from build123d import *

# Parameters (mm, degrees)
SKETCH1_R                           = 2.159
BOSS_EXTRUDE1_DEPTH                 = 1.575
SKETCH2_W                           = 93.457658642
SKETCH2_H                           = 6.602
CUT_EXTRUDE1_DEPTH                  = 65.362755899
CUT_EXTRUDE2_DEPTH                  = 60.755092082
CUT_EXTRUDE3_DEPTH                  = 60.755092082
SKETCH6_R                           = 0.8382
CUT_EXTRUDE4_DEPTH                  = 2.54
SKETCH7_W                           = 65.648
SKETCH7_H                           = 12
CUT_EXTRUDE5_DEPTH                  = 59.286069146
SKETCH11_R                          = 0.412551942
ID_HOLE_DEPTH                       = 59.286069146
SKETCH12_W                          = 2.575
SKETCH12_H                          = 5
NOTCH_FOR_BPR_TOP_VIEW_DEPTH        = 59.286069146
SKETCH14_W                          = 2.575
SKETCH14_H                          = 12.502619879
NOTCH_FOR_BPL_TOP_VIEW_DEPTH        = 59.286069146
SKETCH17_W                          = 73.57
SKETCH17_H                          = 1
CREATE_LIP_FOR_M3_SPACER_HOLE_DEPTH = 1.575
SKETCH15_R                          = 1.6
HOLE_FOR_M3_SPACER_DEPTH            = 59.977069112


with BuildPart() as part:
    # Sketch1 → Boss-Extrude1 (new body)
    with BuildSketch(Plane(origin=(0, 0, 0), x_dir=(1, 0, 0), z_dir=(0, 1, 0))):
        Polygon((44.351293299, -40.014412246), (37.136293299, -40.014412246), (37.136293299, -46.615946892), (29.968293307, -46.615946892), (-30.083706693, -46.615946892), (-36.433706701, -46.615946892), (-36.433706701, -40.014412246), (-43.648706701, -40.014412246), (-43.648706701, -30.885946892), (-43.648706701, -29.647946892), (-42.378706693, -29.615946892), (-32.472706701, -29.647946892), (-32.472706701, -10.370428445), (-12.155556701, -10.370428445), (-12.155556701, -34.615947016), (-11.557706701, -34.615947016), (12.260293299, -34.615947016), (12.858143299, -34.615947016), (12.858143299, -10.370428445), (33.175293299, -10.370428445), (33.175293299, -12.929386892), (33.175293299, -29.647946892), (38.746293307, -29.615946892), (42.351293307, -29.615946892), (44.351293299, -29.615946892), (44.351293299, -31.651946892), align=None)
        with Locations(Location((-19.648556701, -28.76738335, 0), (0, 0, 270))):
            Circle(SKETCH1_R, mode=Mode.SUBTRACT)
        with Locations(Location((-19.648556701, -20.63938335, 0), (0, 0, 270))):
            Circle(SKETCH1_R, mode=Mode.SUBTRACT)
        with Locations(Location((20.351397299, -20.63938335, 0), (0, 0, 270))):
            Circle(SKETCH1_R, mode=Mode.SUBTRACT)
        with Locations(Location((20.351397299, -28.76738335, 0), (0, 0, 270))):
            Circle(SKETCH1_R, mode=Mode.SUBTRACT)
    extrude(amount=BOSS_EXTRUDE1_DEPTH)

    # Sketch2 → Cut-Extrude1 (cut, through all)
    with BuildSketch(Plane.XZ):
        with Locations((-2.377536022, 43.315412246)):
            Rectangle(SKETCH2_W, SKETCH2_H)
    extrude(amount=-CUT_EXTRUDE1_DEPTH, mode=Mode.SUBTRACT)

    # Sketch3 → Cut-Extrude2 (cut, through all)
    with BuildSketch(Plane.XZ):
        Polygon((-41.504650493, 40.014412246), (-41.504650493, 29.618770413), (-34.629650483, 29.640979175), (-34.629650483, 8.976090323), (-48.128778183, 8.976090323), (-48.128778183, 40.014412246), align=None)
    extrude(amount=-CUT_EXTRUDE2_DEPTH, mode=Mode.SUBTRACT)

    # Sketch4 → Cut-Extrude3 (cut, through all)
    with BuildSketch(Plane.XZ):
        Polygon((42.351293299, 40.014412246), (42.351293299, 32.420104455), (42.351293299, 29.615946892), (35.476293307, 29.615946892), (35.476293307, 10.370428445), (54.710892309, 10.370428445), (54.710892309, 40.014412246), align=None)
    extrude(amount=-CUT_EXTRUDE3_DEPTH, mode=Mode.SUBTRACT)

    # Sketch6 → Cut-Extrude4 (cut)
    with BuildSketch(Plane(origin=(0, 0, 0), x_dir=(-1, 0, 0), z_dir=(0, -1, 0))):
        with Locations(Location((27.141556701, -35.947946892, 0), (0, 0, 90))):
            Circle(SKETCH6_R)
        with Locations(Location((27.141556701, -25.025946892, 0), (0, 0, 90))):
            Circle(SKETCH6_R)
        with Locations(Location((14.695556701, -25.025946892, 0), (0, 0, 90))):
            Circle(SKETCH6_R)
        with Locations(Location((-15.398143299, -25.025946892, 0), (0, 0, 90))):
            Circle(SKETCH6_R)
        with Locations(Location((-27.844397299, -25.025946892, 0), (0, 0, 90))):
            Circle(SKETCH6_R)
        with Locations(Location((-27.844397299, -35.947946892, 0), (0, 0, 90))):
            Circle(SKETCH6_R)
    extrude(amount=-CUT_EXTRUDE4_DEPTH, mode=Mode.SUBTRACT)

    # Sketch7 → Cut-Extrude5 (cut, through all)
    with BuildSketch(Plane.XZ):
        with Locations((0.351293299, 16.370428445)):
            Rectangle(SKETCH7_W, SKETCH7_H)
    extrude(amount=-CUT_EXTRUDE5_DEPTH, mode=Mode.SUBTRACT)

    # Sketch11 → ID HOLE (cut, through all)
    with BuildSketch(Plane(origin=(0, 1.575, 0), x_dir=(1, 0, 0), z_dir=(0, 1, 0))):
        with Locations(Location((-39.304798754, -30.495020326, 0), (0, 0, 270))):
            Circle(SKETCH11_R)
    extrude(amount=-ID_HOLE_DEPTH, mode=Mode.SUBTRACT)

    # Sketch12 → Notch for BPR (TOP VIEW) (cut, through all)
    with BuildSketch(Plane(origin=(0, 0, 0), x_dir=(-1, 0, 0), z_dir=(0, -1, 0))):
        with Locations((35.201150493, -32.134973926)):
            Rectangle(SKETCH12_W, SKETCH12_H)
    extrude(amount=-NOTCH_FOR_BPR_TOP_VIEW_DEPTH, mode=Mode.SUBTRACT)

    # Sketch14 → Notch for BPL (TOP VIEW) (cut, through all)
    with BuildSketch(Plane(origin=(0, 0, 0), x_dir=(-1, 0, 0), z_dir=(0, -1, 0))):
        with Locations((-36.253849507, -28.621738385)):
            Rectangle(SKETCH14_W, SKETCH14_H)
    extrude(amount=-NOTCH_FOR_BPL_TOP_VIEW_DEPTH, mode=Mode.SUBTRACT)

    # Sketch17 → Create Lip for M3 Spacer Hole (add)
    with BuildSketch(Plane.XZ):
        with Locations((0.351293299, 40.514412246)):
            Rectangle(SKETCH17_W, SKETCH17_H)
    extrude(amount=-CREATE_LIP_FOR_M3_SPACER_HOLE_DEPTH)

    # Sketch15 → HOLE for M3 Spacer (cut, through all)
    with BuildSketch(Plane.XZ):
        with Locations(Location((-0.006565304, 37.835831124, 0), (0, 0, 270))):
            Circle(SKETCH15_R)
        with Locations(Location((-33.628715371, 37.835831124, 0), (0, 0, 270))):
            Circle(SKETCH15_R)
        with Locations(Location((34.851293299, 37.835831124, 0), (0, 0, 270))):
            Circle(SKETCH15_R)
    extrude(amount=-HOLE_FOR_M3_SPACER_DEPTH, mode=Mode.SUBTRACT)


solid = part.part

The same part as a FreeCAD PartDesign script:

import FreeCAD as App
import Part
import Sketcher
from FreeCAD import Vector


def add_polygon(sketch, points):
    """Adds a closed chain of lines whose ends are joined by coincident constraints."""
    first, n = sketch.GeometryCount, len(points)
    for a, b in zip(points, points[1:] + points[:1]):
        sketch.addGeometry(Part.LineSegment(App.Vector(*a, 0), App.Vector(*b, 0)), False)
    for i in range(n):
        sketch.addConstraint(Sketcher.Constraint("Coincident", first + i, 2, first + (i + 1) % n, 1))

doc = App.newDocument("Part")
params = doc.addObject("Spreadsheet::Sheet", "Params")
for row, (alias, value) in enumerate([
    ("sketch1_width", "73.57 mm"),
    ("pad1_length", "1.575 mm"),
    ("pocket4_length", "2.54 mm"),
    ("sketch6_height", "12 mm"),
    ("sketch8_height", "5 mm"),
    ("sketch10_height", "1 mm"),
    ("sketch10_width", "73.57 mm"),
    ("pad2_length", "1.575 mm"),
    ("sketch11_diameter", "3.2 mm"),
], start=1):
    params.set(f"A{row}", alias)
    params.set(f"B{row}", "=" + value)
    params.setAlias(f"B{row}", alias)

body = doc.addObject("PartDesign::Body", "Body")

sketch1 = body.newObject("Sketcher::SketchObject", "Sketch")
sketch1.AttachmentSupport = (doc.getObject("XZ_Plane"), [""])
sketch1.MapMode = "FlatFace"
add_polygon(sketch1, [(37.1, 40), (44.4, 40), (44.4, 29.6), (38.7, 29.6), (33.2, 29.6), (33.2, 10.4), (12.9, 10.4), (12.9, 34.6), (-12.2, 34.6), (-12.2, 10.4), (-32.5, 10.4), (-32.5, 29.6), (-42.4, 29.6), (-43.6, 29.6), (-43.6, 40), (-36.4, 40), (-36.4, 46.6), (37.1, 46.6)])
sketch1.addGeometry(Part.Circle(Vector(20.4, 28.8, 0), Vector(0, 0, 1), 2.2), False)
sketch1.addGeometry(Part.Circle(Vector(-19.6, 28.8, 0), Vector(0, 0, 1), 2.2), False)
sketch1.addGeometry(Part.Circle(Vector(20.4, 20.6, 0), Vector(0, 0, 1), 2.2), False)
sketch1.addGeometry(Part.Circle(Vector(-19.6, 20.6, 0), Vector(0, 0, 1), 2.2), False)
sketch1.addConstraint(Sketcher.Constraint("Horizontal", 0))
sketch1.addConstraint(Sketcher.Constraint("Vertical", 1))
sketch1.addConstraint(Sketcher.Constraint("Horizontal", 2))
sketch1.addConstraint(Sketcher.Constraint("Vertical", 4))
sketch1.addConstraint(Sketcher.Constraint("Horizontal", 5))
sketch1.addConstraint(Sketcher.Constraint("Vertical", 6))
sketch1.addConstraint(Sketcher.Constraint("Horizontal", 7))
sketch1.addConstraint(Sketcher.Constraint("Vertical", 8))
sketch1.addConstraint(Sketcher.Constraint("Horizontal", 9))
sketch1.addConstraint(Sketcher.Constraint("Vertical", 10))
sketch1.addConstraint(Sketcher.Constraint("Vertical", 13))
sketch1.addConstraint(Sketcher.Constraint("Horizontal", 14))
sketch1.addConstraint(Sketcher.Constraint("Vertical", 15))
sketch1.addConstraint(Sketcher.Constraint("Horizontal", 16))
sketch1.addConstraint(Sketcher.Constraint("Vertical", 17))
sketch1.addConstraint(Sketcher.Constraint("Equal", 18, 19))
sketch1.addConstraint(Sketcher.Constraint("Equal", 19, 20))
sketch1.addConstraint(Sketcher.Constraint("Equal", 20, 21))
sketch1.addConstraint(Sketcher.Constraint("Horizontal", 18, 3, 19, 3))
sketch1.addConstraint(Sketcher.Constraint("Horizontal", 20, 3, 21, 3))
sketch1.addConstraint(Sketcher.Constraint("Horizontal", 5, 2, 8, 2))
sketch1.addConstraint(Sketcher.Constraint("Horizontal", 3, 2, 10, 2))
sketch1.addConstraint(Sketcher.Constraint("Horizontal", 2, 2, 11, 2))
sketch1.addConstraint(Sketcher.Constraint("Horizontal", 10, 2, 12, 2))
sketch1.addConstraint(Sketcher.Constraint("Horizontal", 0, 2, 13, 2))
sketch1.addConstraint(Sketcher.Constraint("Vertical", 18, 3, 20, 3))
sketch1.addConstraint(Sketcher.Constraint("Vertical", 19, 3, 21, 3))
sketch1.addConstraint(Sketcher.Constraint("Equal", 5, 9))
sketch1.addConstraint(Sketcher.Constraint("Equal", 0, 14))
sketch1.addConstraint(Sketcher.Constraint("Diameter", 18, 4.318))
sketch1.addConstraint(Sketcher.Constraint("DistanceY", 2, 2, 6, 2, 5.0))
sketch1.addConstraint(Sketcher.Constraint("DistanceY", 11, 2, 15, 2, 17.0))
sketch1.addConstraint(Sketcher.Constraint("DistanceX", 16, 1, 16, 2, 73.57))
sketch1.addConstraint(Sketcher.Constraint("DistanceX", 0, 1, 0, 2, 7.215))
sketch1.addConstraint(Sketcher.Constraint("DistanceX", 2, 2, 2, 1, 5.605))
sketch1.addConstraint(Sketcher.Constraint("DistanceX", 12, 2, 11, 2, 1.27))
sketch1.addConstraint(Sketcher.Constraint("DistanceX", 7, 2, 7, 1, 25.0137))
sketch1.addConstraint(Sketcher.Constraint("DistanceY", 20, 3, 18, 3, 8.128))
sketch1.addConstraint(Sketcher.Constraint("DistanceX", 3, 2, 2, 2, 5.571))
sketch1.addConstraint(Sketcher.Constraint("DistanceY", 2, 2, 3, 2, 0.032))
sketch1.addConstraint(Sketcher.Constraint("DistanceX", 19, 3, 7, 2, 7.493))
sketch1.addConstraint(Sketcher.Constraint("DistanceX", 11, 2, 10, 2, 9.906))
sketch1.addConstraint(Sketcher.Constraint("DistanceY", 4, 2, 4, 1, 19.277518))
sketch1.addConstraint(Sketcher.Constraint("DistanceY", 1, 2, 1, 1, 10.398465))
sketch1.addConstraint(Sketcher.Constraint("DistanceY", -1, 1, 4, 2, 10.370428))
sketch1.addConstraint(Sketcher.Constraint("DistanceY", 18, 3, 0, 2, 11.247029))
sketch1.addConstraint(Sketcher.Constraint("DistanceX", -1, 1, 18, 3, 20.351397))
sketch1.addConstraint(Sketcher.Constraint("DistanceX", 19, 3, -1, 1, 19.648557))
sketch1.setExpression("Constraints[50]", "Params.sketch1_width")
pad1 = body.newObject("PartDesign::Pad", "Pad")
pad1.Profile = sketch1
pad1.setExpression("Length", "Params.pad1_length")
pad1.Reversed = True

sketch2 = body.newObject("Sketcher::SketchObject", "Sketch001")
sketch2.AttachmentSupport = (doc.getObject("XZ_Plane"), [""])
sketch2.MapMode = "FlatFace"
add_polygon(sketch2, [(-49, 47), (-49, 40), (44, 40), (44, 47)])
sketch2.addConstraint(Sketcher.Constraint("Vertical", 0))
sketch2.addConstraint(Sketcher.Constraint("Horizontal", 1))
sketch2.addConstraint(Sketcher.Constraint("Vertical", 2))
sketch2.addConstraint(Sketcher.Constraint("Horizontal", 3))
sketch2.addConstraint(Sketcher.Constraint("DistanceY", 0, 2, 0, 1, 6.602))
sketch2.addConstraint(Sketcher.Constraint("DistanceX", 1, 1, 1, 2, 93.457659))
sketch2.addConstraint(Sketcher.Constraint("DistanceX", 0, 2, -1, 1, 49.106365))
sketch2.addConstraint(Sketcher.Constraint("DistanceY", -1, 1, 0, 2, 40.014412))
pocket1 = body.newObject("PartDesign::Pocket", "Pocket")
pocket1.Profile = sketch2
pocket1.Type = "ThroughAll"

sketch3 = body.newObject("Sketcher::SketchObject", "Sketch002")
sketch3.AttachmentSupport = (doc.getObject("XZ_Plane"), [""])
sketch3.MapMode = "FlatFace"
add_polygon(sketch3, [(-42, 30), (-42, 40), (-48, 40), (-48, 9), (-35, 9), (-35, 30)])
sketch3.addConstraint(Sketcher.Constraint("Vertical", 0))
sketch3.addConstraint(Sketcher.Constraint("Horizontal", 1))
sketch3.addConstraint(Sketcher.Constraint("Vertical", 2))
sketch3.addConstraint(Sketcher.Constraint("Horizontal", 3))
sketch3.addConstraint(Sketcher.Constraint("Vertical", 4))
sketch3.addConstraint(Sketcher.Constraint("DistanceX", 0, 2, 3, 2, 6.875))
sketch3.addConstraint(Sketcher.Constraint("DistanceY", 0, 1, 0, 2, 10.395642))
sketch3.addConstraint(Sketcher.Constraint("DistanceY", 2, 2, 2, 1, 31.038322))
sketch3.addConstraint(Sketcher.Constraint("DistanceY", 4, 1, 4, 2, 20.664889))
sketch3.addConstraint(Sketcher.Constraint("DistanceX", 1, 2, 1, 1, 6.624128))
sketch3.addConstraint(Sketcher.Constraint("DistanceX", 0, 2, -1, 1, 41.50465))
sketch3.addConstraint(Sketcher.Constraint("DistanceY", -1, 1, 2, 2, 8.97609))
pocket2 = body.newObject("PartDesign::Pocket", "Pocket001")
pocket2.Profile = sketch3
pocket2.Type = "ThroughAll"

sketch4 = body.newObject("Sketcher::SketchObject", "Sketch003")
sketch4.AttachmentSupport = (doc.getObject("XZ_Plane"), [""])
sketch4.MapMode = "FlatFace"
add_polygon(sketch4, [(42, 40), (42, 30), (35, 30), (35, 10), (55, 10), (55, 40)])
sketch4.addConstraint(Sketcher.Constraint("Vertical", 0))
sketch4.addConstraint(Sketcher.Constraint("Horizontal", 1))
sketch4.addConstraint(Sketcher.Constraint("Vertical", 2))
sketch4.addConstraint(Sketcher.Constraint("Horizontal", 3))
sketch4.addConstraint(Sketcher.Constraint("Vertical", 4))
sketch4.addConstraint(Sketcher.Constraint("Horizontal", 5))
sketch4.addConstraint(Sketcher.Constraint("DistanceX", 1, 2, 1, 1, 6.875))
sketch4.addConstraint(Sketcher.Constraint("DistanceX", 3, 1, 3, 2, 19.234599))
sketch4.addConstraint(Sketcher.Constraint("DistanceY", 2, 2, 2, 1, 19.245518))
sketch4.addConstraint(Sketcher.Constraint("DistanceY", 0, 2, 0, 1, 10.398465))
sketch4.addConstraint(Sketcher.Constraint("DistanceY", -1, 1, 2, 2, 10.370428))
sketch4.addConstraint(Sketcher.Constraint("DistanceX", -1, 1, 0, 2, 42.351293))
pocket3 = body.newObject("PartDesign::Pocket", "Pocket002")
pocket3.Profile = sketch4
pocket3.Type = "ThroughAll"

sketch5 = body.newObject("Sketcher::SketchObject", "Sketch004")
sketch5.AttachmentSupport = (doc.getObject("XZ_Plane"), [""])
sketch5.MapMode = "FlatFace"
sketch5.addGeometry(Part.Circle(Vector(-27.1, 35.9, 0), Vector(0, 0, 1), 0.8), False)
sketch5.addGeometry(Part.Circle(Vector(-27.1, 25, 0), Vector(0, 0, 1), 0.8), False)
sketch5.addGeometry(Part.Circle(Vector(-14.7, 25, 0), Vector(0, 0, 1), 0.8), False)
sketch5.addGeometry(Part.Circle(Vector(15.4, 25, 0), Vector(0, 0, 1), 0.8), False)
sketch5.addGeometry(Part.Circle(Vector(27.8, 25, 0), Vector(0, 0, 1), 0.8), False)
sketch5.addGeometry(Part.Circle(Vector(27.8, 35.9, 0), Vector(0, 0, 1), 0.8), False)
sketch5.addConstraint(Sketcher.Constraint("Equal", 0, 1))
sketch5.addConstraint(Sketcher.Constraint("Equal", 1, 2))
sketch5.addConstraint(Sketcher.Constraint("Equal", 2, 3))
sketch5.addConstraint(Sketcher.Constraint("Equal", 3, 4))
sketch5.addConstraint(Sketcher.Constraint("Equal", 4, 5))
sketch5.addConstraint(Sketcher.Constraint("Horizontal", 1, 3, 2, 3))
sketch5.addConstraint(Sketcher.Constraint("Horizontal", 2, 3, 3, 3))
sketch5.addConstraint(Sketcher.Constraint("Horizontal", 3, 3, 4, 3))
sketch5.addConstraint(Sketcher.Constraint("Horizontal", 0, 3, 5, 3))
sketch5.addConstraint(Sketcher.Constraint("Vertical", 0, 3, 1, 3))
sketch5.addConstraint(Sketcher.Constraint("Vertical", 4, 3, 5, 3))
sketch5.addConstraint(Sketcher.Constraint("Diameter", 0, 1.6764))
sketch5.addConstraint(Sketcher.Constraint("DistanceY", 1, 3, 0, 3, 10.922))
sketch5.addConstraint(Sketcher.Constraint("DistanceX", 1, 3, 2, 3, 12.446))
sketch5.addConstraint(Sketcher.Constraint("DistanceX", 2, 3, 3, 3, 30.0937))
sketch5.addConstraint(Sketcher.Constraint("DistanceX", 0, 3, -1, 1, 27.141557))
sketch5.addConstraint(Sketcher.Constraint("DistanceY", -1, 1, 0, 3, 35.947947))
sketch5.addConstraint(Sketcher.Constraint("DistanceX", -1, 1, 4, 3, 27.844397))
pocket4 = body.newObject("PartDesign::Pocket", "Pocket003")
pocket4.Profile = sketch5
pocket4.setExpression("Length", "Params.pocket4_length")

sketch6 = body.newObject("Sketcher::SketchObject", "Sketch005")
sketch6.AttachmentSupport = (doc.getObject("XZ_Plane"), [""])
sketch6.MapMode = "FlatFace"
add_polygon(sketch6, [(-32, 22), (-32, 10), (33, 10), (33, 22)])
sketch6.addConstraint(Sketcher.Constraint("Vertical", 0))
sketch6.addConstraint(Sketcher.Constraint("Horizontal", 1))
sketch6.addConstraint(Sketcher.Constraint("Vertical", 2))
sketch6.addConstraint(Sketcher.Constraint("Horizontal", 3))
sketch6.addConstraint(Sketcher.Constraint("DistanceY", 0, 2, 0, 1, 12.0))
sketch6.addConstraint(Sketcher.Constraint("DistanceX", 1, 1, 1, 2, 65.648))
sketch6.addConstraint(Sketcher.Constraint("DistanceY", -1, 1, 0, 2, 10.370428))
sketch6.addConstraint(Sketcher.Constraint("DistanceX", 0, 2, -1, 1, 32.472707))
sketch6.setExpression("Constraints[8]", "Params.sketch6_height")
pocket5 = body.newObject("PartDesign::Pocket", "Pocket004")
pocket5.Profile = sketch6
pocket5.Type = "ThroughAll"

sketch7 = body.newObject("Sketcher::SketchObject", "Sketch006")
sketch7.AttachmentSupport = (doc.getObject("XZ_Plane"), [""])
sketch7.MapMode = "FlatFace"
sketch7.AttachmentOffset = App.Placement(Vector(0, 0, -1.575), App.Rotation())
sketch7.addGeometry(Part.Circle(Vector(-39.3, 30.5, 0), Vector(0, 0, 1), 0.41), False)
sketch7.addConstraint(Sketcher.Constraint("Diameter", 0, 0.825104))
sketch7.addConstraint(Sketcher.Constraint("DistanceX", 0, 3, -1, 1, 39.304799))
sketch7.addConstraint(Sketcher.Constraint("DistanceY", -1, 1, 0, 3, 30.49502))
pocket6 = body.newObject("PartDesign::Pocket", "Pocket005")
pocket6.Profile = sketch7
pocket6.Type = "ThroughAll"
pocket6.Reversed = True

sketch8 = body.newObject("Sketcher::SketchObject", "Sketch007")
sketch8.AttachmentSupport = (doc.getObject("XZ_Plane"), [""])
sketch8.MapMode = "FlatFace"
add_polygon(sketch8, [(-33.9, 29.6), (-33.9, 34.6), (-36.5, 34.6), (-36.5, 29.6)])
sketch8.addConstraint(Sketcher.Constraint("Vertical", 0))
sketch8.addConstraint(Sketcher.Constraint("Horizontal", 1))
sketch8.addConstraint(Sketcher.Constraint("Vertical", 2))
sketch8.addConstraint(Sketcher.Constraint("Horizontal", 3))
sketch8.addConstraint(Sketcher.Constraint("DistanceY", 0, 1, 0, 2, 5.0))
sketch8.addConstraint(Sketcher.Constraint("DistanceX", 1, 2, 1, 1, 2.575))
sketch8.addConstraint(Sketcher.Constraint("DistanceX", 0, 2, -1, 1, 33.91365))
sketch8.addConstraint(Sketcher.Constraint("DistanceY", -1, 1, 0, 2, 34.634974))
sketch8.setExpression("Constraints[8]", "Params.sketch8_height")
pocket7 = body.newObject("PartDesign::Pocket", "Pocket006")
pocket7.Profile = sketch8
pocket7.Type = "ThroughAll"

sketch9 = body.newObject("Sketcher::SketchObject", "Sketch008")
sketch9.AttachmentSupport = (doc.getObject("XZ_Plane"), [""])
sketch9.MapMode = "FlatFace"
add_polygon(sketch9, [(37.5, 22.4), (37.5, 34.9), (35, 34.9), (35, 22.4)])
sketch9.addConstraint(Sketcher.Constraint("Vertical", 0))
sketch9.addConstraint(Sketcher.Constraint("Horizontal", 1))
sketch9.addConstraint(Sketcher.Constraint("Vertical", 2))
sketch9.addConstraint(Sketcher.Constraint("Horizontal", 3))
sketch9.addConstraint(Sketcher.Constraint("DistanceX", 1, 2, 1, 1, 2.575))
sketch9.addConstraint(Sketcher.Constraint("DistanceY", 0, 1, 0, 2, 12.50262))
sketch9.addConstraint(Sketcher.Constraint("DistanceX", -1, 1, 0, 2, 37.54135))
sketch9.addConstraint(Sketcher.Constraint("DistanceY", -1, 1, 0, 2, 34.873048))
pocket8 = body.newObject("PartDesign::Pocket", "Pocket007")
pocket8.Profile = sketch9
pocket8.Type = "ThroughAll"

sketch10 = body.newObject("Sketcher::SketchObject", "Sketch009")
sketch10.AttachmentSupport = (doc.getObject("XZ_Plane"), [""])
sketch10.MapMode = "FlatFace"
add_polygon(sketch10, [(-36.4, 41), (-36.4, 40), (37.1, 40), (37.1, 41)])
sketch10.addConstraint(Sketcher.Constraint("Vertical", 0))
sketch10.addConstraint(Sketcher.Constraint("Horizontal", 1))
sketch10.addConstraint(Sketcher.Constraint("Vertical", 2))
sketch10.addConstraint(Sketcher.Constraint("Horizontal", 3))
sketch10.addConstraint(Sketcher.Constraint("DistanceY", 0, 2, 0, 1, 1.0))
sketch10.addConstraint(Sketcher.Constraint("DistanceX", 1, 1, 1, 2, 73.57))
sketch10.addConstraint(Sketcher.Constraint("DistanceX", 0, 2, -1, 1, 36.433707))
sketch10.addConstraint(Sketcher.Constraint("DistanceY", -1, 1, 0, 2, 40.014412))
sketch10.setExpression("Constraints[8]", "Params.sketch10_height")
sketch10.setExpression("Constraints[9]", "Params.sketch10_width")
pad2 = body.newObject("PartDesign::Pad", "Pad001")
pad2.Profile = sketch10
pad2.setExpression("Length", "Params.pad2_length")
pad2.Reversed = True

sketch11 = body.newObject("Sketcher::SketchObject", "Sketch010")
sketch11.AttachmentSupport = (doc.getObject("XZ_Plane"), [""])
sketch11.MapMode = "FlatFace"
sketch11.addGeometry(Part.Circle(Vector(0, 37.8, 0), Vector(0, 0, 1), 1.6), False)
sketch11.addGeometry(Part.Circle(Vector(-33.6, 37.8, 0), Vector(0, 0, 1), 1.6), False)
sketch11.addGeometry(Part.Circle(Vector(34.9, 37.8, 0), Vector(0, 0, 1), 1.6), False)
sketch11.addConstraint(Sketcher.Constraint("Equal", 0, 1))
sketch11.addConstraint(Sketcher.Constraint("Equal", 1, 2))
sketch11.addConstraint(Sketcher.Constraint("Horizontal", 0, 3, 1, 3))
sketch11.addConstraint(Sketcher.Constraint("Horizontal", 1, 3, 2, 3))
sketch11.addConstraint(Sketcher.Constraint("Diameter", 0, 3.2))
sketch11.addConstraint(Sketcher.Constraint("DistanceY", -1, 1, 0, 3, 37.835831))
sketch11.addConstraint(Sketcher.Constraint("DistanceX", 1, 3, 0, 3, 33.62215))
sketch11.addConstraint(Sketcher.Constraint("DistanceX", 0, 3, 2, 3, 34.857859))
sketch11.addConstraint(Sketcher.Constraint("DistanceX", 0, 3, -1, 1, 0.006565))
sketch11.setExpression("Constraints[4]", "Params.sketch11_diameter")
pocket9 = body.newObject("PartDesign::Pocket", "Pocket008")
pocket9.Profile = sketch11
pocket9.Type = "ThroughAll"

doc.recompute()
